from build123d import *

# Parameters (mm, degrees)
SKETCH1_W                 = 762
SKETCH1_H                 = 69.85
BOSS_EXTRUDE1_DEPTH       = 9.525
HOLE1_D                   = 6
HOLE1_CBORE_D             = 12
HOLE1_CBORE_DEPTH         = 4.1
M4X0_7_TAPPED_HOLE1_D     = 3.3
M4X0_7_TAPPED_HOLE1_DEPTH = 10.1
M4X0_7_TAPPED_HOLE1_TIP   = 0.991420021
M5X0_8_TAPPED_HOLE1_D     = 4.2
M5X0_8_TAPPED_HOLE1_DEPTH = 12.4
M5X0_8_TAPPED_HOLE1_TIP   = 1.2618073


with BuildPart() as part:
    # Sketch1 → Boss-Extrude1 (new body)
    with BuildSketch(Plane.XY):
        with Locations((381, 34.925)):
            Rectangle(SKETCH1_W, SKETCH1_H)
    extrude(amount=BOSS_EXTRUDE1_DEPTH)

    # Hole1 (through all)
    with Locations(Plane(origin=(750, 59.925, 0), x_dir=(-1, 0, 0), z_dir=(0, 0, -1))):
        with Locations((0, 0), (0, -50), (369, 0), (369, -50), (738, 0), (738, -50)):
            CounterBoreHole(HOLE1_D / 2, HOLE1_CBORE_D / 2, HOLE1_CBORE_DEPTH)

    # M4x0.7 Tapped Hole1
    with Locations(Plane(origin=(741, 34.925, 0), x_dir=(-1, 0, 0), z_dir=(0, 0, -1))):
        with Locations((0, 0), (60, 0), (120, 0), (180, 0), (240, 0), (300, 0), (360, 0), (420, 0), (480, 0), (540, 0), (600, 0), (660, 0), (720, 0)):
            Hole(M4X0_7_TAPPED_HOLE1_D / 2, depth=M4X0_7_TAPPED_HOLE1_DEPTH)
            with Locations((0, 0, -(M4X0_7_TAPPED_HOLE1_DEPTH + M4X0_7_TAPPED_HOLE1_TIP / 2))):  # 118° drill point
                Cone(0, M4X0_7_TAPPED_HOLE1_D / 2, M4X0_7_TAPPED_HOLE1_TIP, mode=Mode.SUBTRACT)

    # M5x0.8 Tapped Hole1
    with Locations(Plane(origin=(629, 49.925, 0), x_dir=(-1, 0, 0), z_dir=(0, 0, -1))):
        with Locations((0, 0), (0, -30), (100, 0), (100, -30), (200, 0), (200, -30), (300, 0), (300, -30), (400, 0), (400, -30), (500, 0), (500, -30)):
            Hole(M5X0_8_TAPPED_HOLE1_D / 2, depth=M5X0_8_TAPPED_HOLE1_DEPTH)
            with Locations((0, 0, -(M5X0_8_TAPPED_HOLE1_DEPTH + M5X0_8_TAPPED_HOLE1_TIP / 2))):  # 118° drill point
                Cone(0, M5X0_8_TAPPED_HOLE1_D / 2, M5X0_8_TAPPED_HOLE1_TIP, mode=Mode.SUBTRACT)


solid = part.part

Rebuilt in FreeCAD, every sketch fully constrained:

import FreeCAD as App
import Part
import Sketcher

V = App.Vector
Q = App.Units.Quantity

doc = App.newDocument("Part")
params = doc.addObject("Spreadsheet::Sheet", "Params")
for row, (alias, value) in enumerate([
    ("sketch1_width", "762 mm"),
    ("sketch1_height", "69.85 mm"),
    ("pad1_length", "9.525 mm"),
    ("sketch2_diameter", "6 mm"),
    ("hole_diameter", "6 mm"),
    ("hole_cbore_diameter", "12 mm"),
    ("hole_cbore_depth", "4.1 mm"),
    ("sketch3_diameter", "3.3 mm"),
    ("hole2_diameter", "3.3 mm"),
    ("hole2_depth", "10.1 mm"),
    ("sketch4_diameter", "4.2 mm"),
    ("hole3_diameter", "4.2 mm"),
    ("hole3_depth", "12.4 mm"),
], start=1):
    params.set(f"A{row}", alias)
    params.set(f"B{row}", "=" + value)
    params.setAlias(f"B{row}", alias)

body = doc.addObject("PartDesign::Body", "Body")

# Sketch on XY plane
sketch1 = body.newObject("Sketcher::SketchObject", "Sketch")
sketch1.AttachmentSupport = (doc.getObject("XY_Plane"), [""])
sketch1.MapMode = "FlatFace"
sketch1.addGeometry(Part.LineSegment(V(0, 69.85, 0), V(0, 0, 0)), False)
sketch1.addGeometry(Part.LineSegment(V(0, 0, 0), V(762, 0, 0)), False)
sketch1.addGeometry(Part.LineSegment(V(762, 0, 0), V(762, 69.85, 0)), False)
sketch1.addGeometry(Part.LineSegment(V(762, 69.85, 0), V(0, 69.85, 0)), False)
sketch1.addConstraint(Sketcher.Constraint("Coincident", 0, 2, 1, 1))
sketch1.addConstraint(Sketcher.Constraint("Coincident", 1, 2, 2, 1))
sketch1.addConstraint(Sketcher.Constraint("Coincident", 2, 2, 3, 1))
sketch1.addConstraint(Sketcher.Constraint("Coincident", 3, 2, 0, 1))
sketch1.addConstraint(Sketcher.Constraint("Vertical", 0))
sketch1.addConstraint(Sketcher.Constraint("Horizontal", 1))
sketch1.addConstraint(Sketcher.Constraint("Vertical", 2))
sketch1.addConstraint(Sketcher.Constraint("Horizontal", 3))
sketch1.addConstraint(Sketcher.Constraint("Coincident", 0, 2, -1, 1))
sketch1.addConstraint(Sketcher.Constraint("DistanceX", 1, 1, 1, 2, Q("762 mm")))
sketch1.addConstraint(Sketcher.Constraint("DistanceY", 0, 2, 0, 1, Q("69.85 mm")))
sketch1.setExpression("Constraints[9]", "Params.sketch1_width")
sketch1.setExpression("Constraints[10]", "Params.sketch1_height")
pad1 = body.newObject("PartDesign::Pad", "Pad")
pad1.Profile = sketch1
pad1.setExpression("Length", "Params.pad1_length")

# Sketch on XY plane
sketch2 = body.newObject("Sketcher::SketchObject", "Sketch001")
sketch2.AttachmentSupport = (doc.getObject("XY_Plane"), [""])
sketch2.MapMode = "FlatFace"
sketch2.addGeometry(Part.Circle(V(750, 59.925, 0), V(0, 0, 1), 3), False)
sketch2.addGeometry(Part.Circle(V(750, 9.925, 0), V(0, 0, 1), 3), False)
sketch2.addGeometry(Part.Circle(V(381, 59.925, 0), V(0, 0, 1), 3), False)
sketch2.addGeometry(Part.Circle(V(381, 9.925, 0), V(0, 0, 1), 3), False)
sketch2.addGeometry(Part.Circle(V(12, 59.925, 0), V(0, 0, 1), 3), False)
sketch2.addGeometry(Part.Circle(V(12, 9.925, 0), V(0, 0, 1), 3), False)
sketch2.addConstraint(Sketcher.Constraint("Equal", 0, 1))
sketch2.addConstraint(Sketcher.Constraint("Equal", 1, 2))
sketch2.addConstraint(Sketcher.Constraint("Equal", 2, 3))
sketch2.addConstraint(Sketcher.Constraint("Equal", 3, 4))
sketch2.addConstraint(Sketcher.Constraint("Equal", 4, 5))
sketch2.addConstraint(Sketcher.Constraint("Horizontal", 0, 3, 2, 3))
sketch2.addConstraint(Sketcher.Constraint("Horizontal", 1, 3, 3, 3))
sketch2.addConstraint(Sketcher.Constraint("Horizontal", 2, 3, 4, 3))
sketch2.addConstraint(Sketcher.Constraint("Horizontal", 3, 3, 5, 3))
sketch2.addConstraint(Sketcher.Constraint("Vertical", 0, 3, 1, 3))
sketch2.addConstraint(Sketcher.Constraint("Vertical", 2, 3, 3, 3))
sketch2.addConstraint(Sketcher.Constraint("Vertical", 4, 3, 5, 3))
sketch2.addConstraint(Sketcher.Constraint("Diameter", 0, Q("6 mm")))
sketch2.addConstraint(Sketcher.Constraint("DistanceX", -1, 1, 0, 3, Q("750 mm")))
sketch2.addConstraint(Sketcher.Constraint("DistanceX", -1, 1, 2, 3, Q("381 mm")))
sketch2.addConstraint(Sketcher.Constraint("DistanceX", -1, 1, 4, 3, Q("12 mm")))
sketch2.addConstraint(Sketcher.Constraint("DistanceY", 1, 3, 0, 3, Q("50 mm")))
sketch2.addConstraint(Sketcher.Constraint("DistanceY", -1, 1, 0, 3, Q("59.925 mm")))
sketch2.setExpression("Constraints[12]", "Params.sketch2_diameter")
doc.recompute()
hole = body.newObject("PartDesign::Hole", "Hole")
hole.Profile = sketch2
hole.ThreadType = "None"
hole.setExpression("Diameter", "Params.hole_diameter")
hole.DepthType = "ThroughAll"
hole.HoleCutType = "Counterbore"
hole.setExpression("HoleCutDiameter", "Params.hole_cbore_diameter")
hole.setExpression("HoleCutDepth", "Params.hole_cbore_depth")
hole.Reversed = True

# Sketch on XY plane
sketch3 = body.newObject("Sketcher::SketchObject", "Sketch002")
sketch3.AttachmentSupport = (doc.getObject("XY_Plane"), [""])
sketch3.MapMode = "FlatFace"
sketch3.addGeometry(Part.Circle(V(741, 34.925, 0), V(0, 0, 1), 1.65), False)
sketch3.addGeometry(Part.Circle(V(681, 34.925, 0), V(0, 0, 1), 1.65), False)
sketch3.addGeometry(Part.Circle(V(621, 34.925, 0), V(0, 0, 1), 1.65), False)
sketch3.addGeometry(Part.Circle(V(561, 34.925, 0), V(0, 0, 1), 1.65), False)
sketch3.addGeometry(Part.Circle(V(501, 34.925, 0), V(0, 0, 1), 1.65), False)
sketch3.addGeometry(Part.Circle(V(441, 34.925, 0), V(0, 0, 1), 1.65), False)
sketch3.addGeometry(Part.Circle(V(381, 34.925, 0), V(0, 0, 1), 1.65), False)
sketch3.addGeometry(Part.Circle(V(321, 34.925, 0), V(0, 0, 1), 1.65), False)
sketch3.addGeometry(Part.Circle(V(261, 34.925, 0), V(0, 0, 1), 1.65), False)
sketch3.addGeometry(Part.Circle(V(201, 34.925, 0), V(0, 0, 1), 1.65), False)
sketch3.addGeometry(Part.Circle(V(141, 34.925, 0), V(0, 0, 1), 1.65), False)
sketch3.addGeometry(Part.Circle(V(81, 34.925, 0), V(0, 0, 1), 1.65), False)
sketch3.addGeometry(Part.Circle(V(21, 34.925, 0), V(0, 0, 1), 1.65), False)
sketch3.addConstraint(Sketcher.Constraint("Equal", 0, 1))
sketch3.addConstraint(Sketcher.Constraint("Equal", 1, 2))
sketch3.addConstraint(Sketcher.Constraint("Equal", 2, 3))
sketch3.addConstraint(Sketcher.Constraint("Equal", 3, 4))
sketch3.addConstraint(Sketcher.Constraint("Equal", 4, 5))
sketch3.addConstraint(Sketcher.Constraint("Equal", 5, 6))
sketch3.addConstraint(Sketcher.Constraint("Equal", 6, 7))
sketch3.addConstraint(Sketcher.Constraint("Equal", 7, 8))
sketch3.addConstraint(Sketcher.Constraint("Equal", 8, 9))
sketch3.addConstraint(Sketcher.Constraint("Equal", 9, 10))
sketch3.addConstraint(Sketcher.Constraint("Equal", 10, 11))
sketch3.addConstraint(Sketcher.Constraint("Equal", 11, 12))
sketch3.addConstraint(Sketcher.Constraint("Horizontal", 0, 3, 1, 3))
sketch3.addConstraint(Sketcher.Constraint("Horizontal", 1, 3, 2, 3))
sketch3.addConstraint(Sketcher.Constraint("Horizontal", 2, 3, 3, 3))
sketch3.addConstraint(Sketcher.Constraint("Horizontal", 3, 3, 4, 3))
sketch3.addConstraint(Sketcher.Constraint("Horizontal", 4, 3, 5, 3))
sketch3.addConstraint(Sketcher.Constraint("Horizontal", 5, 3, 6, 3))
sketch3.addConstraint(Sketcher.Constraint("Horizontal", 6, 3, 7, 3))
sketch3.addConstraint(Sketcher.Constraint("Horizontal", 7, 3, 8, 3))
sketch3.addConstraint(Sketcher.Constraint("Horizontal", 8, 3, 9, 3))
sketch3.addConstraint(Sketcher.Constraint("Horizontal", 9, 3, 10, 3))
sketch3.addConstraint(Sketcher.Constraint("Horizontal", 10, 3, 11, 3))
sketch3.addConstraint(Sketcher.Constraint("Horizontal", 11, 3, 12, 3))
sketch3.addConstraint(Sketcher.Constraint("Diameter", 0, Q("3.3 mm")))
sketch3.addConstraint(Sketcher.Constraint("DistanceX", -1, 1, 0, 3, Q("741 mm")))
sketch3.addConstraint(Sketcher.Constraint("DistanceX", -1, 1, 1, 3, Q("681 mm")))
sketch3.addConstraint(Sketcher.Constraint("DistanceX", -1, 1, 2, 3, Q("621 mm")))
sketch3.addConstraint(Sketcher.Constraint("DistanceX", -1, 1, 3, 3, Q("561 mm")))
sketch3.addConstraint(Sketcher.Constraint("DistanceX", -1, 1, 4, 3, Q("501 mm")))
sketch3.addConstraint(Sketcher.Constraint("DistanceX", -1, 1, 5, 3, Q("441 mm")))
sketch3.addConstraint(Sketcher.Constraint("DistanceX", -1, 1, 6, 3, Q("381 mm")))
sketch3.addConstraint(Sketcher.Constraint("DistanceX", -1, 1, 7, 3, Q("321 mm")))
sketch3.addConstraint(Sketcher.Constraint("DistanceX", -1, 1, 8, 3, Q("261 mm")))
sketch3.addConstraint(Sketcher.Constraint("DistanceX", -1, 1, 9, 3, Q("201 mm")))
sketch3.addConstraint(Sketcher.Constraint("DistanceX", -1, 1, 10, 3, Q("141 mm")))
sketch3.addConstraint(Sketcher.Constraint("DistanceX", -1, 1, 11, 3, Q("81 mm")))
sketch3.addConstraint(Sketcher.Constraint("DistanceX", -1, 1, 12, 3, Q("21 mm")))
sketch3.addConstraint(Sketcher.Constraint("DistanceY", -1, 1, 0, 3, Q("34.925 mm")))
sketch3.setExpression("Constraints[24]", "Params.sketch3_diameter")
doc.recompute()
hole2 = body.newObject("PartDesign::Hole", "Hole001")
hole2.Profile = sketch3
hole2.ThreadType = "None"
hole2.setExpression("Diameter", "Params.hole2_diameter")
hole2.DepthType = "Dimension"
hole2.setExpression("Depth", "Params.hole2_depth")
hole2.DrillPoint = "Angled"
hole2.DrillPointAngle = 118
hole2.Reversed = True

# Sketch on XY plane
sketch4 = body.newObject("Sketcher::SketchObject", "Sketch003")
sketch4.AttachmentSupport = (doc.getObject("XY_Plane"), [""])
sketch4.MapMode = "FlatFace"
sketch4.addGeometry(Part.Circle(V(629, 49.925, 0), V(0, 0, 1), 2.1), False)
sketch4.addGeometry(Part.Circle(V(629, 19.925, 0), V(0, 0, 1), 2.1), False)
sketch4.addGeometry(Part.Circle(V(529, 49.925, 0), V(0, 0, 1), 2.1), False)
sketch4.addGeometry(Part.Circle(V(529, 19.925, 0), V(0, 0, 1), 2.1), False)
sketch4.addGeometry(Part.Circle(V(429, 49.925, 0), V(0, 0, 1), 2.1), False)
sketch4.addGeometry(Part.Circle(V(429, 19.925, 0), V(0, 0, 1), 2.1), False)
sketch4.addGeometry(Part.Circle(V(329, 49.925, 0), V(0, 0, 1), 2.1), False)
sketch4.addGeometry(Part.Circle(V(329, 19.925, 0), V(0, 0, 1), 2.1), False)
sketch4.addGeometry(Part.Circle(V(229, 49.925, 0), V(0, 0, 1), 2.1), False)
sketch4.addGeometry(Part.Circle(V(229, 19.925, 0), V(0, 0, 1), 2.1), False)
sketch4.addGeometry(Part.Circle(V(129, 49.925, 0), V(0, 0, 1), 2.1), False)
sketch4.addGeometry(Part.Circle(V(129, 19.925, 0), V(0, 0, 1), 2.1), False)
sketch4.addConstraint(Sketcher.Constraint("Equal", 0, 1))
sketch4.addConstraint(Sketcher.Constraint("Equal", 1, 2))
sketch4.addConstraint(Sketcher.Constraint("Equal", 2, 3))
sketch4.addConstraint(Sketcher.Constraint("Equal", 3, 4))
sketch4.addConstraint(Sketcher.Constraint("Equal", 4, 5))
sketch4.addConstraint(Sketcher.Constraint("Equal", 5, 6))
sketch4.addConstraint(Sketcher.Constraint("Equal", 6, 7))
sketch4.addConstraint(Sketcher.Constraint("Equal", 7, 8))
sketch4.addConstraint(Sketcher.Constraint("Equal", 8, 9))
sketch4.addConstraint(Sketcher.Constraint("Equal", 9, 10))
sketch4.addConstraint(Sketcher.Constraint("Equal", 10, 11))
sketch4.addConstraint(Sketcher.Constraint("Horizontal", 0, 3, 2, 3))
sketch4.addConstraint(Sketcher.Constraint("Horizontal", 1, 3, 3, 3))
sketch4.addConstraint(Sketcher.Constraint("Horizontal", 2, 3, 4, 3))
sketch4.addConstraint(Sketcher.Constraint("Horizontal", 3, 3, 5, 3))
sketch4.addConstraint(Sketcher.Constraint("Horizontal", 4, 3, 6, 3))
sketch4.addConstraint(Sketcher.Constraint("Horizontal", 5, 3, 7, 3))
sketch4.addConstraint(Sketcher.Constraint("Horizontal", 6, 3, 8, 3))
sketch4.addConstraint(Sketcher.Constraint("Horizontal", 7, 3, 9, 3))
sketch4.addConstraint(Sketcher.Constraint("Horizontal", 8, 3, 10, 3))
sketch4.addConstraint(Sketcher.Constraint("Horizontal", 9, 3, 11, 3))
sketch4.addConstraint(Sketcher.Constraint("Vertical", 0, 3, 1, 3))
sketch4.addConstraint(Sketcher.Constraint("Vertical", 2, 3, 3, 3))
sketch4.addConstraint(Sketcher.Constraint("Vertical", 4, 3, 5, 3))
sketch4.addConstraint(Sketcher.Constraint("Vertical", 6, 3, 7, 3))
sketch4.addConstraint(Sketcher.Constraint("Vertical", 8, 3, 9, 3))
sketch4.addConstraint(Sketcher.Constraint("Vertical", 10, 3, 11, 3))
sketch4.addConstraint(Sketcher.Constraint("Diameter", 0, Q("4.2 mm")))
sketch4.addConstraint(Sketcher.Constraint("DistanceX", -1, 1, 0, 3, Q("629 mm")))
sketch4.addConstraint(Sketcher.Constraint("DistanceX", -1, 1, 2, 3, Q("529 mm")))
sketch4.addConstraint(Sketcher.Constraint("DistanceX", -1, 1, 4, 3, Q("429 mm")))
sketch4.addConstraint(Sketcher.Constraint("DistanceX", -1, 1, 6, 3, Q("329 mm")))
sketch4.addConstraint(Sketcher.Constraint("DistanceX", -1, 1, 8, 3, Q("229 mm")))
sketch4.addConstraint(Sketcher.Constraint("DistanceX", -1, 1, 10, 3, Q("129 mm")))
sketch4.addConstraint(Sketcher.Constraint("DistanceY", 1, 3, 0, 3, Q("30 mm")))
sketch4.addConstraint(Sketcher.Constraint("DistanceY", -1, 1, 0, 3, Q("49.925 mm")))
sketch4.setExpression("Constraints[27]", "Params.sketch4_diameter")
doc.recompute()
hole3 = body.newObject("PartDesign::Hole", "Hole002")
hole3.Profile = sketch4
hole3.ThreadType = "None"
hole3.setExpression("Diameter", "Params.hole3_diameter")
hole3.DepthType = "Dimension"
hole3.setExpression("Depth", "Params.hole3_depth")
hole3.DrillPoint = "Angled"
hole3.DrillPointAngle = 118
hole3.Reversed = True

doc.recompute()
